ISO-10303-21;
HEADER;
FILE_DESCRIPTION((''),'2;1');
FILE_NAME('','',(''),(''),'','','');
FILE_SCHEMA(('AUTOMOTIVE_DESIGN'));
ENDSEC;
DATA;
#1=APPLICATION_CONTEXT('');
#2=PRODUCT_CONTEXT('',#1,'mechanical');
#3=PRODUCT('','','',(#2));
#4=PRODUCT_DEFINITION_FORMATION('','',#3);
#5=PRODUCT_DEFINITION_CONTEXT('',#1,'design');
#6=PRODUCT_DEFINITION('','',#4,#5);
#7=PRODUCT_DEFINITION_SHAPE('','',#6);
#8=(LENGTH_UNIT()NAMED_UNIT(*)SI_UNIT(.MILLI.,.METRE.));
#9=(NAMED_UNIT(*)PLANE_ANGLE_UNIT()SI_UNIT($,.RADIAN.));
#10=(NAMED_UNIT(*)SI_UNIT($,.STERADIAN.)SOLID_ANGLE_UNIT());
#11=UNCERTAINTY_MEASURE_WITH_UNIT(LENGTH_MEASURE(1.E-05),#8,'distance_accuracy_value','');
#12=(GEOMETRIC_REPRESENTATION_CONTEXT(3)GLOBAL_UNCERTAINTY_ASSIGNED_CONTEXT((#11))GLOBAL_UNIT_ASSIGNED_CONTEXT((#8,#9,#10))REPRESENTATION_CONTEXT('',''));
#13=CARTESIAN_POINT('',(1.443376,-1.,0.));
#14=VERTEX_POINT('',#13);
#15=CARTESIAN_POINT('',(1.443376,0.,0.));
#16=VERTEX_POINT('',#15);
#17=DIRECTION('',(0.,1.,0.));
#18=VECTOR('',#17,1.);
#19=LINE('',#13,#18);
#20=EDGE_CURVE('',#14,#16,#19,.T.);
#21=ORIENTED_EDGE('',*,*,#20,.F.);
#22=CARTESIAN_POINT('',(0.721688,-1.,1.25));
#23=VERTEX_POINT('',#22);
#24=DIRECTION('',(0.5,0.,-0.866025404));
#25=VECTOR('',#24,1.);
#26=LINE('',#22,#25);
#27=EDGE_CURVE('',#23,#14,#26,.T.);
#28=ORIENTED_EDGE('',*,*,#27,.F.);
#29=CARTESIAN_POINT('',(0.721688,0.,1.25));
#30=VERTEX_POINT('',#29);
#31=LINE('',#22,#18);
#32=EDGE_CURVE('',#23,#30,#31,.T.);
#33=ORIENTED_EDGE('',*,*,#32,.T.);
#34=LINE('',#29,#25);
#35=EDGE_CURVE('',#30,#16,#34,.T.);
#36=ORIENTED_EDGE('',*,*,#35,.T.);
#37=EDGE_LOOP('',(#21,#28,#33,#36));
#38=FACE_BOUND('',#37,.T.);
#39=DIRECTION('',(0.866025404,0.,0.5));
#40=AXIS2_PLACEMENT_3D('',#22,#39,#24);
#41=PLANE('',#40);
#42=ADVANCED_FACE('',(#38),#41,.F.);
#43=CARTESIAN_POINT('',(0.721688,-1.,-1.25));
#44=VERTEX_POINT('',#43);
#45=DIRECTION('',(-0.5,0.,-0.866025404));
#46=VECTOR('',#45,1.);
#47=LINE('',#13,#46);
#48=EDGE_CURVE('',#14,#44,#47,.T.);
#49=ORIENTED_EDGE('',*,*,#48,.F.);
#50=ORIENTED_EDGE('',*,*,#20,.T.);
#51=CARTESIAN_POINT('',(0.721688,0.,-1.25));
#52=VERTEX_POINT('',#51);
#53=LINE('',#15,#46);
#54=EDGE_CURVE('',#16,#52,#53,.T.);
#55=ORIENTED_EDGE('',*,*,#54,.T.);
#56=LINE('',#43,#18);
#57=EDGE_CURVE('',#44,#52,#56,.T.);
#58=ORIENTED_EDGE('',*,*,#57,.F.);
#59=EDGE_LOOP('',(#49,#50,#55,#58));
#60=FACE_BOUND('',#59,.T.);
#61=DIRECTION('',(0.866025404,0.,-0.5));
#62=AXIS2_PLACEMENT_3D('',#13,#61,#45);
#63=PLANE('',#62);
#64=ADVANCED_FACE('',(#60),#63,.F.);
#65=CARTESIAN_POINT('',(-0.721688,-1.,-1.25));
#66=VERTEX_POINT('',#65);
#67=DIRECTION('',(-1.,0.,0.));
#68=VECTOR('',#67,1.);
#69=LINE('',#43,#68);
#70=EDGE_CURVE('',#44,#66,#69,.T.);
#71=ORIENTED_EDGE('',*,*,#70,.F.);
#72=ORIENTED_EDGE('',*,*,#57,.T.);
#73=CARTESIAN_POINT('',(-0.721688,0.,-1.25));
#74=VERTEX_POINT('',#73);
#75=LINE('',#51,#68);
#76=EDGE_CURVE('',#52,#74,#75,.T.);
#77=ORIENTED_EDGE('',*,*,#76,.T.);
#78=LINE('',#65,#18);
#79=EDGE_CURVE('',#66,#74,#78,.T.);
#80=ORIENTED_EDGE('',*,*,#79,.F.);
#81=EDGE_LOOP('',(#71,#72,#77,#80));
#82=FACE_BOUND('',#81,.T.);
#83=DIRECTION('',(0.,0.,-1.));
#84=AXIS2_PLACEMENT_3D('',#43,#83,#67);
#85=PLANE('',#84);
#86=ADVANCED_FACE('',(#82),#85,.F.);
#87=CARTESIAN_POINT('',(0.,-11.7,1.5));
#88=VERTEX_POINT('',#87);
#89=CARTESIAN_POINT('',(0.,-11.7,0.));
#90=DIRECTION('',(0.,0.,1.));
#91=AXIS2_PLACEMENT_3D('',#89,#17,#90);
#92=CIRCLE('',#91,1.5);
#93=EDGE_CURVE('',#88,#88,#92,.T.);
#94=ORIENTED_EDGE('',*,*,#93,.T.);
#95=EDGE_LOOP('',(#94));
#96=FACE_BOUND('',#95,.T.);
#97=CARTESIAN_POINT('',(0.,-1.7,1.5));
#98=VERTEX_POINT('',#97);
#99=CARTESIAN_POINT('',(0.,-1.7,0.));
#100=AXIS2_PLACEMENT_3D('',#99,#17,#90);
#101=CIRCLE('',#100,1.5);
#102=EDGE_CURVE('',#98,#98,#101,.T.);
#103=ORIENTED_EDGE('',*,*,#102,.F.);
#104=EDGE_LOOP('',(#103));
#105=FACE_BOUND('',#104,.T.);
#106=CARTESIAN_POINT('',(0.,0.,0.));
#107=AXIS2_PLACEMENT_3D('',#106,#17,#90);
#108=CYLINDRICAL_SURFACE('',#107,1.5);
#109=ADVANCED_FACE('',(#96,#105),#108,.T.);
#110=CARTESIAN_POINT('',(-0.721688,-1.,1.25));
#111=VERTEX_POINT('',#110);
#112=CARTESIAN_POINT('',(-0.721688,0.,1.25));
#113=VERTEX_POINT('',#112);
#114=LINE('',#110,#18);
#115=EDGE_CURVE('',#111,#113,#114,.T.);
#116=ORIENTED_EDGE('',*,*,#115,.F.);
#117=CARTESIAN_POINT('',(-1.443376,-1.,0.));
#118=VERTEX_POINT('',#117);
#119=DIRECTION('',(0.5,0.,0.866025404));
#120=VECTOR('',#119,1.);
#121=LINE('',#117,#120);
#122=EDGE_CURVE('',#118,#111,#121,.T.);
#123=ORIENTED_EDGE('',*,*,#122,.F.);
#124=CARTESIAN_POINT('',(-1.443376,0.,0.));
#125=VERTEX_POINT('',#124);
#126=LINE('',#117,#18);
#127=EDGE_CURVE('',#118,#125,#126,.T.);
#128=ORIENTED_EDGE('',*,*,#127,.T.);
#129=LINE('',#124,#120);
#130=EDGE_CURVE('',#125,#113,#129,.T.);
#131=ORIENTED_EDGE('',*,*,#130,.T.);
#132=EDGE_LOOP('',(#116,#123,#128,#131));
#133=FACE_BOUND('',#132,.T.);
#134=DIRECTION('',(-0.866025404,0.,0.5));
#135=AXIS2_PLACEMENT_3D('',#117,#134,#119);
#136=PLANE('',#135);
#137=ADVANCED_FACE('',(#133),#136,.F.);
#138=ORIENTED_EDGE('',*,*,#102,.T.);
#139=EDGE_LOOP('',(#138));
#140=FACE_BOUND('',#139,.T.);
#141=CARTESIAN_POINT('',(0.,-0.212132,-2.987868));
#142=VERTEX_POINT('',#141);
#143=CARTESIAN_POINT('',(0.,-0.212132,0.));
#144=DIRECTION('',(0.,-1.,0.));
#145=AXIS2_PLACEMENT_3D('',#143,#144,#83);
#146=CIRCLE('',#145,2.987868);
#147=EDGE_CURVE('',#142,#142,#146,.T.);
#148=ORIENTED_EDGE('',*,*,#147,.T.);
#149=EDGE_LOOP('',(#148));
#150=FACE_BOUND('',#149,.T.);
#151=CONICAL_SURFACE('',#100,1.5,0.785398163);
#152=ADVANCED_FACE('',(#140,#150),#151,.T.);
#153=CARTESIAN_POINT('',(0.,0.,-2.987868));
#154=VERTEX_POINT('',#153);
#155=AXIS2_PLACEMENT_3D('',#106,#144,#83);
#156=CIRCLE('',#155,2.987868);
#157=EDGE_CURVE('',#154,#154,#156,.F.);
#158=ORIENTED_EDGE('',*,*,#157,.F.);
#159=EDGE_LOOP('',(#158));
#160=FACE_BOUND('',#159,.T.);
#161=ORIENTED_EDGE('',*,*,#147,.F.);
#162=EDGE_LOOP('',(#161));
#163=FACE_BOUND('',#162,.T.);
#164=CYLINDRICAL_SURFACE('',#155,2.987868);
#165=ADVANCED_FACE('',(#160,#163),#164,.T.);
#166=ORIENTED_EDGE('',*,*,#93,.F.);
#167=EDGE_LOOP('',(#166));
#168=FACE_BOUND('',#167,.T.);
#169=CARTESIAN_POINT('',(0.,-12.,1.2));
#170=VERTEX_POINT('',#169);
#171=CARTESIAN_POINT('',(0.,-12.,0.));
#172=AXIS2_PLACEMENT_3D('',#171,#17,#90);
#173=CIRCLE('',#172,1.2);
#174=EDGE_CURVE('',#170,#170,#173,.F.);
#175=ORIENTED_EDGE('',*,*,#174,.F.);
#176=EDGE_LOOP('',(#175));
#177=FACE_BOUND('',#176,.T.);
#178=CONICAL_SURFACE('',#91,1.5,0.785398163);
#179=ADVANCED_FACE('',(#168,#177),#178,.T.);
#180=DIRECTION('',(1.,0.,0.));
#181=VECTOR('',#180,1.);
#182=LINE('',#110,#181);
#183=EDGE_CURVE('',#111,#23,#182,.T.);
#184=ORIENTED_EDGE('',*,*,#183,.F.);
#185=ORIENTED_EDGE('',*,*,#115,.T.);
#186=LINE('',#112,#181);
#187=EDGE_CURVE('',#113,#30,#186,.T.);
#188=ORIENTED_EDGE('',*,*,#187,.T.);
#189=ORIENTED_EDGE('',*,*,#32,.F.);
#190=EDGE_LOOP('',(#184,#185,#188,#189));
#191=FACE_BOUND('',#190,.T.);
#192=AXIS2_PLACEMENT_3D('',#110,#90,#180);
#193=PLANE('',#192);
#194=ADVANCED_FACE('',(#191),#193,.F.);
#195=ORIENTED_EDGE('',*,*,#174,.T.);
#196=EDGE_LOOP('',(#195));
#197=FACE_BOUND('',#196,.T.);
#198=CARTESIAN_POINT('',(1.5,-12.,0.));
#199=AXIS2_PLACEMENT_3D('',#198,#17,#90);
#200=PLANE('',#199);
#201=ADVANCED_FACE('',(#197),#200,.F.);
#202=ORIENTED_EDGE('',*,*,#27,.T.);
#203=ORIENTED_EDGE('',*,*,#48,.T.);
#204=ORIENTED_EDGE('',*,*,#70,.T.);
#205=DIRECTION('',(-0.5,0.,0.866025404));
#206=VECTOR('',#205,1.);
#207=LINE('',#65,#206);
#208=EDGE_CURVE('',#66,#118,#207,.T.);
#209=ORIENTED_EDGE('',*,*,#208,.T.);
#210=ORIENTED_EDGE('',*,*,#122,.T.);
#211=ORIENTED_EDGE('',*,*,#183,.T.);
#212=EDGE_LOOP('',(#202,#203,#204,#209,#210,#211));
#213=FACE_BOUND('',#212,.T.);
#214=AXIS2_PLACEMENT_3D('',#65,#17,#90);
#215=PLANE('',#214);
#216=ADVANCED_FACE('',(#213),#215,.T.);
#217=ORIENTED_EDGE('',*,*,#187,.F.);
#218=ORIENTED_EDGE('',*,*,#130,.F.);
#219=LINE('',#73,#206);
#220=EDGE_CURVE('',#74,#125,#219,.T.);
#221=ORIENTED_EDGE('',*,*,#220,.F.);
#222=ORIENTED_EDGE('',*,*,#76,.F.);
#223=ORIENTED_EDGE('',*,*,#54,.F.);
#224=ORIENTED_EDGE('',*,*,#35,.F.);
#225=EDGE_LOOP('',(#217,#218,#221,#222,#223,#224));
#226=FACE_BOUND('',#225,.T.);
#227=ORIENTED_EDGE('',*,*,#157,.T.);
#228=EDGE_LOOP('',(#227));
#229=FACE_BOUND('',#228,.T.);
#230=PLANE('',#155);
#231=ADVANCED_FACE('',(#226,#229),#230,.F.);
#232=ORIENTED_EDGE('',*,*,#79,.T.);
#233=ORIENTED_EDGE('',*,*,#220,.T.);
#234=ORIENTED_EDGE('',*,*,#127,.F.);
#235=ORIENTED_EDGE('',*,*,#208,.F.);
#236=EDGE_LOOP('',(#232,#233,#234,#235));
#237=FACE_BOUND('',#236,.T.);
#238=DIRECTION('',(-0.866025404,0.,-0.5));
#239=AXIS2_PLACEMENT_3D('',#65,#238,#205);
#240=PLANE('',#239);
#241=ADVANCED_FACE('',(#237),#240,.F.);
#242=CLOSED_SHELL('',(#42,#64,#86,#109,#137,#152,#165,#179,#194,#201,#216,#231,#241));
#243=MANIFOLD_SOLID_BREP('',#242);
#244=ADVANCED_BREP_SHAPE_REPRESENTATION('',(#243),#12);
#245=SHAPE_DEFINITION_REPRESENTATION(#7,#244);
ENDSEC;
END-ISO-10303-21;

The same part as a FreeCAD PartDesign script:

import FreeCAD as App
import Part
import Sketcher

V = App.Vector
Q = App.Units.Quantity


def edges_at(feature, points):
    """Names of the edges that pass closest to the given points."""
    edges = feature.Shape.Edges
    near = lambda p: min(range(len(edges)), key=lambda i: edges[i].distToShape(Part.Vertex(*p))[0])
    return sorted({f"Edge{near(p) + 1}" for p in points})


def add_polygon(sketch, points):
    """Adds a closed chain of lines whose ends are joined by coincident constraints."""
    first, n = sketch.GeometryCount, len(points)
    for a, b in zip(points, points[1:] + points[:1]):
        sketch.addGeometry(Part.LineSegment(App.Vector(*a, 0), App.Vector(*b, 0)), False)
    for i in range(n):
        sketch.addConstraint(Sketcher.Constraint("Coincident", first + i, 2, first + (i + 1) % n, 1))

doc = App.newDocument("Part")
body = doc.addObject("PartDesign::Body", "Body")

sketch1 = body.newObject("Sketcher::SketchObject", "Sketch")
sketch1.AttachmentSupport = (doc.getObject("XY_Plane"), [""])
sketch1.MapMode = "FlatFace"
add_polygon(sketch1, [(3.2, 0), (0, 0), (0, -12), (1.5, -12), (1.5, -1.7)])
sketch1.addConstraint([
    Sketcher.Constraint("Horizontal", 0),
    Sketcher.Constraint("Vertical", 1),
    Sketcher.Constraint("Horizontal", 2),
    Sketcher.Constraint("Vertical", 3),
    Sketcher.Constraint("Coincident", 0, 2, -1, 1),
    Sketcher.Constraint("DistanceY", 1, 2, 1, 1, 12.0),
    Sketcher.Constraint("Angle", 4, Q("45 deg")),
    Sketcher.Constraint("DistanceX", 0, 2, 0, 1, 3.2),
    Sketcher.Constraint("DistanceX", 2, 1, 2, 2, 1.5),
])
revolution = body.newObject("PartDesign::Revolution", "Revolution")
revolution.Profile = sketch1
revolution.ReferenceAxis = (sketch1, ["V_Axis"])
revolution.Angle = 360
doc.recompute()

chamfer = body.newObject("PartDesign::Chamfer", "Chamfer")
chamfer.Base = (revolution, edges_at(revolution, [(0, 0, -3.2)]))
chamfer.ChamferType = "Two distances"
chamfer.Size = 0.3
chamfer.Size2 = 0.212132
chamfer.FlipDirection = True
doc.recompute()

chamfer2 = body.newObject("PartDesign::Chamfer", "Chamfer001")
chamfer2.Base = (chamfer, edges_at(chamfer, [(0, -12, -1.5)]))
chamfer2.Size = 0.3

sketch2 = body.newObject("Sketcher::SketchObject", "Sketch001")
sketch2.AttachmentSupport = (doc.getObject("XZ_Plane"), [""])
sketch2.MapMode = "FlatFace"
add_polygon(sketch2, [(-0.7, -1.2), (-1.4, 0), (-0.7, 1.2), (0.7, 1.2), (1.4, 0), (0.7, -1.2)])
sketch2.addConstraint([
    Sketcher.Constraint("Horizontal", 2),
    Sketcher.Constraint("Horizontal", 5),
    Sketcher.Constraint("Symmetric", 0, 2, 3, 2, -1, 1),
    Sketcher.Constraint("Symmetric", 1, 2, 4, 2, -1, 1),
    Sketcher.Constraint("PointOnObject", 0, 2, -1),
    Sketcher.Constraint("Parallel", 0, 3),
    Sketcher.Constraint("Vertical", 2, 2, 4, 2),
    Sketcher.Constraint("Angle", 0, Q("120 deg")),
    Sketcher.Constraint("DistanceY", 4, 2, 2, 2, 2.5),
    Sketcher.Constraint("DistanceX", 2, 1, 2, 2, 1.443376),
])
pocket1 = body.newObject("PartDesign::Pocket", "Pocket")
pocket1.Profile = sketch2
pocket1.Length = 1
pocket1.Reversed = True

doc.recompute()
